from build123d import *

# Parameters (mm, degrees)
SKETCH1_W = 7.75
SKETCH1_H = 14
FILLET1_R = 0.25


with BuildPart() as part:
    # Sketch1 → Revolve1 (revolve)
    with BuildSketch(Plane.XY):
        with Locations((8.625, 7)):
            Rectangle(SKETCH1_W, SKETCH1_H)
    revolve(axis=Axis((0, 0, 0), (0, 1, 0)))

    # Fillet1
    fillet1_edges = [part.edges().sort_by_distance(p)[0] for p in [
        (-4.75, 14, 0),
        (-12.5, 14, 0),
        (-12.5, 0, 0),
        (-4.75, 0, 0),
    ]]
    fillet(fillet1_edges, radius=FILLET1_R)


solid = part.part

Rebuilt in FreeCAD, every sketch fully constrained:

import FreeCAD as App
import Part
import Sketcher
from FreeCAD import Vector
Q = App.Units.Quantity


def edges_at(feature, points):
    """Names of the edges that pass closest to the given points."""
    edges = feature.Shape.Edges
    near = lambda p: min(range(len(edges)), key=lambda i: edges[i].distToShape(Part.Vertex(*p))[0])
    return sorted({f"Edge{near(p) + 1}" for p in points})


def add_polygon(sketch, points):
    """Adds a closed chain of lines whose ends are joined by coincident constraints."""
    first, n = sketch.GeometryCount, len(points)
    for a, b in zip(points, points[1:] + points[:1]):
        sketch.addGeometry(Part.LineSegment(App.Vector(*a, 0), App.Vector(*b, 0)), False)
    for i in range(n):
        sketch.addConstraint(Sketcher.Constraint("Coincident", first + i, 2, first + (i + 1) % n, 1))

doc = App.newDocument("Part")
body = doc.addObject("PartDesign::Body", "Body")

# Sketch on XY plane
sketch1 = doc.addObject("Sketcher::SketchObject", "Sketch")
body.addObject(sketch1)
sketch1.AttachmentSupport = (doc.XY_Plane, [""])
sketch1.MapMode = "FlatFace"
add_polygon(sketch1, [(5, 14), (5, 0), (12, 0), (12, 14)])  # lines 0-3
sketch1.addConstraint(Sketcher.Constraint("Vertical", 0))
sketch1.addConstraint(Sketcher.Constraint("Horizontal", 1))
sketch1.addConstraint(Sketcher.Constraint("Vertical", 2))
sketch1.addConstraint(Sketcher.Constraint("Horizontal", 3))
sketch1.addConstraint(Sketcher.Constraint("PointOnObject", 0, 2, -1))
sketch1.addConstraint(Sketcher.Constraint("DistanceY", 0, 2, 0, 1, Q("14 mm")))
sketch1.addConstraint(Sketcher.Constraint("DistanceX", 1, 1, 1, 2, Q("7.75 mm")))
sketch1.addConstraint(Sketcher.Constraint("DistanceX", -1, 1, 1, 2, Q("12.5 mm")))
revolution = doc.addObject("PartDesign::Revolution", "Revolution")
body.addObject(revolution)
revolution.Profile = sketch1
revolution.ReferenceAxis = (sketch1, ["V_Axis"])
revolution.Angle = 360
doc.recompute()

fillet = doc.addObject("PartDesign::Fillet", "Fillet")
body.addObject(fillet)
fillet.Base = (revolution, edges_at(revolution, [
    (-4.75, 14, 0),
    (-12.5, 14, 0),
    (-12.5, 0, 0),
    (-4.75, 0, 0),
]))
fillet.Radius = 0.25

doc.recompute()
